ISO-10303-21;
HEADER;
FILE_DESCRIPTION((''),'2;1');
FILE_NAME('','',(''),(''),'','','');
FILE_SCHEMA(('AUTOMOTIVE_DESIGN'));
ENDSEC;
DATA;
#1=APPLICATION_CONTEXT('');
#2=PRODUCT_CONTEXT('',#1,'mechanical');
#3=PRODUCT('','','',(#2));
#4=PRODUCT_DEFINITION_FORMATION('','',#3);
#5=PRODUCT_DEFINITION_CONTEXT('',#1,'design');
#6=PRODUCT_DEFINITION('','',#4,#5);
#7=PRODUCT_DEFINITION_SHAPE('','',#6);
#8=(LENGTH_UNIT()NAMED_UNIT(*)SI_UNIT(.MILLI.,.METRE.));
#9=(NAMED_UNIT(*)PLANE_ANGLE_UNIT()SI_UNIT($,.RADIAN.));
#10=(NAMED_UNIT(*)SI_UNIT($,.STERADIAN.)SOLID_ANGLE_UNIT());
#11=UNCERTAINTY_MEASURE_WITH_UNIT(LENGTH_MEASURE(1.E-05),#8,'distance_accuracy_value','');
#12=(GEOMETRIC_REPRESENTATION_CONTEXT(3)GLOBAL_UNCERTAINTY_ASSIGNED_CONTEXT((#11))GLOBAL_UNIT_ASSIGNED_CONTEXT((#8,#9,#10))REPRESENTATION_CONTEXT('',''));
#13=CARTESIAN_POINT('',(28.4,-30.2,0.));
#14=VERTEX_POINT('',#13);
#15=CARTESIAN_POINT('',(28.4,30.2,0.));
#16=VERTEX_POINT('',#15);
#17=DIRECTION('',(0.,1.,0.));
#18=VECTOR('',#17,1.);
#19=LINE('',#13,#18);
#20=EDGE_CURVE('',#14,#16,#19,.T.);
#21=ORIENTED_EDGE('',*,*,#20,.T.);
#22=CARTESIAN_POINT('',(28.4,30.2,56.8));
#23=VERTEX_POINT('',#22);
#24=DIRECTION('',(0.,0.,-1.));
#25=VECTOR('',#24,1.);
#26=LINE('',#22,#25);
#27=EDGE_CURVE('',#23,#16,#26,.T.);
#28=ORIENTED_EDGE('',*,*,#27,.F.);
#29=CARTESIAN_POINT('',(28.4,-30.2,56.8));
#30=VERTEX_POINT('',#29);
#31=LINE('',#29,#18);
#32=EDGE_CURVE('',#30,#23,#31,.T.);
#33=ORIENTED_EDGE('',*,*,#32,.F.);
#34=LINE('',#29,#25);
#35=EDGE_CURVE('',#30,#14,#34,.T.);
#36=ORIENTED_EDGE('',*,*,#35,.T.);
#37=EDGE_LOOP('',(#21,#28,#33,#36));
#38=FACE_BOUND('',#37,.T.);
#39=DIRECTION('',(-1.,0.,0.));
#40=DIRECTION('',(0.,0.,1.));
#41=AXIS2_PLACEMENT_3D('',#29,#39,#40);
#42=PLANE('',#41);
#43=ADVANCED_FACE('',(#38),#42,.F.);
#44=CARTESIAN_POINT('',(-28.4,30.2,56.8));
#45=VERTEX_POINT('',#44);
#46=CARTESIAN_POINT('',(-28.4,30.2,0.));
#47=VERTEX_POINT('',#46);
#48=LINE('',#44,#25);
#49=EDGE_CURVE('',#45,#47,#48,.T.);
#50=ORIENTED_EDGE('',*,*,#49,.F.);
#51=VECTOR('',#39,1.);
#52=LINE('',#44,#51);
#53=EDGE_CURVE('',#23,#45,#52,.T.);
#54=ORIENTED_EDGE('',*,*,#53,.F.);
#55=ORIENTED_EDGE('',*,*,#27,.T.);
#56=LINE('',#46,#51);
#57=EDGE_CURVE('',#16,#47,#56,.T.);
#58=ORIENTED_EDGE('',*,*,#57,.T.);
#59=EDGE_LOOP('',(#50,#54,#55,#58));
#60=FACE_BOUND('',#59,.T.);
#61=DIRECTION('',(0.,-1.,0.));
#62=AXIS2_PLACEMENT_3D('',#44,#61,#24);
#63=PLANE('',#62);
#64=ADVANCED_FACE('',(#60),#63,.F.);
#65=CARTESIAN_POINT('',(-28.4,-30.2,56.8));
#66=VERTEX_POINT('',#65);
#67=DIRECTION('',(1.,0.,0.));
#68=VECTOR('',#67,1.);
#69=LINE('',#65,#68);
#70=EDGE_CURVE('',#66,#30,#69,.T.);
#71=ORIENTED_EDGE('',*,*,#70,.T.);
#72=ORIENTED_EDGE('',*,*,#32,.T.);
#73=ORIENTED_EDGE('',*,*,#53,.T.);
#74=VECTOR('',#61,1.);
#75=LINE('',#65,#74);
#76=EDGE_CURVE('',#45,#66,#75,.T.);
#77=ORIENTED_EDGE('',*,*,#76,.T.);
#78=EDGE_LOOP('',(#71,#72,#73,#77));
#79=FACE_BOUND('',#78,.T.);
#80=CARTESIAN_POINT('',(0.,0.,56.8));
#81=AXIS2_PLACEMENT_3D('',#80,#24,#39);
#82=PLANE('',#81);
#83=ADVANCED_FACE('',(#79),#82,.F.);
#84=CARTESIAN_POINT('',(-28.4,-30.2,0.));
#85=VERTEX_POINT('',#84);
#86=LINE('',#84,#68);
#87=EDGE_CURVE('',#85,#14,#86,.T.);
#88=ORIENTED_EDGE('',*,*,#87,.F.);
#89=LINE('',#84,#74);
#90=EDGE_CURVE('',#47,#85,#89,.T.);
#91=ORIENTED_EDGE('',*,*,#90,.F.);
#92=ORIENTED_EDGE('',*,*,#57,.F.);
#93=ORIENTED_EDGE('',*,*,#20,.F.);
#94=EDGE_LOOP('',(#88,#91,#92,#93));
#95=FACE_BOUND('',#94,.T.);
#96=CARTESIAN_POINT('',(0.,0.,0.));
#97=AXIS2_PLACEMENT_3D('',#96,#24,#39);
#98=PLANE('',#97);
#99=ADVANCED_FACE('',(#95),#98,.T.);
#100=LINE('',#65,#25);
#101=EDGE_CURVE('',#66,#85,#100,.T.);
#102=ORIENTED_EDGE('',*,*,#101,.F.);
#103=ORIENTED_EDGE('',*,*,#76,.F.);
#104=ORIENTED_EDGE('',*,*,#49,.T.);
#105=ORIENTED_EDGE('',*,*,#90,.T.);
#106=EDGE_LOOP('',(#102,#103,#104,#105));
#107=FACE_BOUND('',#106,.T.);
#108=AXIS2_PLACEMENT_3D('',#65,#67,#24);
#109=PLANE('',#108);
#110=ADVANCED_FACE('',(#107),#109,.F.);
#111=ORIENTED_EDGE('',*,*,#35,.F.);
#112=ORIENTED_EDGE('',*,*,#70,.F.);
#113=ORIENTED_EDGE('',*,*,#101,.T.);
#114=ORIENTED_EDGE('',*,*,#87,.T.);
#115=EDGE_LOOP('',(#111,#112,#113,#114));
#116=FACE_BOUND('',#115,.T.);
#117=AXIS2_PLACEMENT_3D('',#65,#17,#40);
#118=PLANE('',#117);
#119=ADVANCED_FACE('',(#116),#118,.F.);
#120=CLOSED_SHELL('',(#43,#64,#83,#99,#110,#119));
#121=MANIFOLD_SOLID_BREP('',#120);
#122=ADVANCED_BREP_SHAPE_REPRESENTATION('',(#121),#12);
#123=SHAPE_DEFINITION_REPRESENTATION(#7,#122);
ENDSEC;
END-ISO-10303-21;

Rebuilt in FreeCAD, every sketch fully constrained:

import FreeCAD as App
import Part
import Sketcher

doc = App.newDocument("Part")
params = doc.addObject("Spreadsheet::Sheet", "Params")
for row, (alias, value) in enumerate([
    ("sketch1_width", "56.8 mm"),
    ("sketch1_height", "60.4 mm"),
    ("pad1_length", "56.8 mm"),
], start=1):
    params.set(f"A{row}", alias)
    params.set(f"B{row}", "=" + value)
    params.setAlias(f"B{row}", alias)

body = doc.addObject("PartDesign::Body", "Body")

sketch1 = doc.addObject("Sketcher::SketchObject", "Sketch")
body.addObject(sketch1)
sketch1.AttachmentSupport = (doc.XY_Plane, [""])
sketch1.MapMode = "FlatFace"
sketch1.addGeometry(Part.LineSegment(App.Vector(-28.4, 30.2, 0), App.Vector(-28.4, -30.2, 0)), False)
sketch1.addGeometry(Part.LineSegment(App.Vector(-28.4, -30.2, 0), App.Vector(28.4, -30.2, 0)), False)
sketch1.addGeometry(Part.LineSegment(App.Vector(28.4, -30.2, 0), App.Vector(28.4, 30.2, 0)), False)
sketch1.addGeometry(Part.LineSegment(App.Vector(28.4, 30.2, 0), App.Vector(-28.4, 30.2, 0)), False)
sketch1.addConstraint(Sketcher.Constraint("Coincident", 0, 2, 1, 1))
sketch1.addConstraint(Sketcher.Constraint("Coincident", 1, 2, 2, 1))
sketch1.addConstraint(Sketcher.Constraint("Coincident", 2, 2, 3, 1))
sketch1.addConstraint(Sketcher.Constraint("Coincident", 3, 2, 0, 1))
sketch1.addConstraint(Sketcher.Constraint("Vertical", 0))
sketch1.addConstraint(Sketcher.Constraint("Horizontal", 1))
sketch1.addConstraint(Sketcher.Constraint("Vertical", 2))
sketch1.addConstraint(Sketcher.Constraint("Horizontal", 3))
sketch1.addConstraint(Sketcher.Constraint("Symmetric", 0, 2, 2, 2, -1, 1))
sketch1.addConstraint(Sketcher.Constraint("DistanceX", 1, 1, 1, 2, 56.8))
sketch1.addConstraint(Sketcher.Constraint("DistanceY", 0, 2, 0, 1, 60.4))
sketch1.setExpression("Constraints[9]", "Params.sketch1_width")
sketch1.setExpression("Constraints[10]", "Params.sketch1_height")
pad1 = doc.addObject("PartDesign::Pad", "Pad")
body.addObject(pad1)
pad1.Profile = sketch1
pad1.setExpression("Length", "Params.pad1_length")

doc.recompute()
